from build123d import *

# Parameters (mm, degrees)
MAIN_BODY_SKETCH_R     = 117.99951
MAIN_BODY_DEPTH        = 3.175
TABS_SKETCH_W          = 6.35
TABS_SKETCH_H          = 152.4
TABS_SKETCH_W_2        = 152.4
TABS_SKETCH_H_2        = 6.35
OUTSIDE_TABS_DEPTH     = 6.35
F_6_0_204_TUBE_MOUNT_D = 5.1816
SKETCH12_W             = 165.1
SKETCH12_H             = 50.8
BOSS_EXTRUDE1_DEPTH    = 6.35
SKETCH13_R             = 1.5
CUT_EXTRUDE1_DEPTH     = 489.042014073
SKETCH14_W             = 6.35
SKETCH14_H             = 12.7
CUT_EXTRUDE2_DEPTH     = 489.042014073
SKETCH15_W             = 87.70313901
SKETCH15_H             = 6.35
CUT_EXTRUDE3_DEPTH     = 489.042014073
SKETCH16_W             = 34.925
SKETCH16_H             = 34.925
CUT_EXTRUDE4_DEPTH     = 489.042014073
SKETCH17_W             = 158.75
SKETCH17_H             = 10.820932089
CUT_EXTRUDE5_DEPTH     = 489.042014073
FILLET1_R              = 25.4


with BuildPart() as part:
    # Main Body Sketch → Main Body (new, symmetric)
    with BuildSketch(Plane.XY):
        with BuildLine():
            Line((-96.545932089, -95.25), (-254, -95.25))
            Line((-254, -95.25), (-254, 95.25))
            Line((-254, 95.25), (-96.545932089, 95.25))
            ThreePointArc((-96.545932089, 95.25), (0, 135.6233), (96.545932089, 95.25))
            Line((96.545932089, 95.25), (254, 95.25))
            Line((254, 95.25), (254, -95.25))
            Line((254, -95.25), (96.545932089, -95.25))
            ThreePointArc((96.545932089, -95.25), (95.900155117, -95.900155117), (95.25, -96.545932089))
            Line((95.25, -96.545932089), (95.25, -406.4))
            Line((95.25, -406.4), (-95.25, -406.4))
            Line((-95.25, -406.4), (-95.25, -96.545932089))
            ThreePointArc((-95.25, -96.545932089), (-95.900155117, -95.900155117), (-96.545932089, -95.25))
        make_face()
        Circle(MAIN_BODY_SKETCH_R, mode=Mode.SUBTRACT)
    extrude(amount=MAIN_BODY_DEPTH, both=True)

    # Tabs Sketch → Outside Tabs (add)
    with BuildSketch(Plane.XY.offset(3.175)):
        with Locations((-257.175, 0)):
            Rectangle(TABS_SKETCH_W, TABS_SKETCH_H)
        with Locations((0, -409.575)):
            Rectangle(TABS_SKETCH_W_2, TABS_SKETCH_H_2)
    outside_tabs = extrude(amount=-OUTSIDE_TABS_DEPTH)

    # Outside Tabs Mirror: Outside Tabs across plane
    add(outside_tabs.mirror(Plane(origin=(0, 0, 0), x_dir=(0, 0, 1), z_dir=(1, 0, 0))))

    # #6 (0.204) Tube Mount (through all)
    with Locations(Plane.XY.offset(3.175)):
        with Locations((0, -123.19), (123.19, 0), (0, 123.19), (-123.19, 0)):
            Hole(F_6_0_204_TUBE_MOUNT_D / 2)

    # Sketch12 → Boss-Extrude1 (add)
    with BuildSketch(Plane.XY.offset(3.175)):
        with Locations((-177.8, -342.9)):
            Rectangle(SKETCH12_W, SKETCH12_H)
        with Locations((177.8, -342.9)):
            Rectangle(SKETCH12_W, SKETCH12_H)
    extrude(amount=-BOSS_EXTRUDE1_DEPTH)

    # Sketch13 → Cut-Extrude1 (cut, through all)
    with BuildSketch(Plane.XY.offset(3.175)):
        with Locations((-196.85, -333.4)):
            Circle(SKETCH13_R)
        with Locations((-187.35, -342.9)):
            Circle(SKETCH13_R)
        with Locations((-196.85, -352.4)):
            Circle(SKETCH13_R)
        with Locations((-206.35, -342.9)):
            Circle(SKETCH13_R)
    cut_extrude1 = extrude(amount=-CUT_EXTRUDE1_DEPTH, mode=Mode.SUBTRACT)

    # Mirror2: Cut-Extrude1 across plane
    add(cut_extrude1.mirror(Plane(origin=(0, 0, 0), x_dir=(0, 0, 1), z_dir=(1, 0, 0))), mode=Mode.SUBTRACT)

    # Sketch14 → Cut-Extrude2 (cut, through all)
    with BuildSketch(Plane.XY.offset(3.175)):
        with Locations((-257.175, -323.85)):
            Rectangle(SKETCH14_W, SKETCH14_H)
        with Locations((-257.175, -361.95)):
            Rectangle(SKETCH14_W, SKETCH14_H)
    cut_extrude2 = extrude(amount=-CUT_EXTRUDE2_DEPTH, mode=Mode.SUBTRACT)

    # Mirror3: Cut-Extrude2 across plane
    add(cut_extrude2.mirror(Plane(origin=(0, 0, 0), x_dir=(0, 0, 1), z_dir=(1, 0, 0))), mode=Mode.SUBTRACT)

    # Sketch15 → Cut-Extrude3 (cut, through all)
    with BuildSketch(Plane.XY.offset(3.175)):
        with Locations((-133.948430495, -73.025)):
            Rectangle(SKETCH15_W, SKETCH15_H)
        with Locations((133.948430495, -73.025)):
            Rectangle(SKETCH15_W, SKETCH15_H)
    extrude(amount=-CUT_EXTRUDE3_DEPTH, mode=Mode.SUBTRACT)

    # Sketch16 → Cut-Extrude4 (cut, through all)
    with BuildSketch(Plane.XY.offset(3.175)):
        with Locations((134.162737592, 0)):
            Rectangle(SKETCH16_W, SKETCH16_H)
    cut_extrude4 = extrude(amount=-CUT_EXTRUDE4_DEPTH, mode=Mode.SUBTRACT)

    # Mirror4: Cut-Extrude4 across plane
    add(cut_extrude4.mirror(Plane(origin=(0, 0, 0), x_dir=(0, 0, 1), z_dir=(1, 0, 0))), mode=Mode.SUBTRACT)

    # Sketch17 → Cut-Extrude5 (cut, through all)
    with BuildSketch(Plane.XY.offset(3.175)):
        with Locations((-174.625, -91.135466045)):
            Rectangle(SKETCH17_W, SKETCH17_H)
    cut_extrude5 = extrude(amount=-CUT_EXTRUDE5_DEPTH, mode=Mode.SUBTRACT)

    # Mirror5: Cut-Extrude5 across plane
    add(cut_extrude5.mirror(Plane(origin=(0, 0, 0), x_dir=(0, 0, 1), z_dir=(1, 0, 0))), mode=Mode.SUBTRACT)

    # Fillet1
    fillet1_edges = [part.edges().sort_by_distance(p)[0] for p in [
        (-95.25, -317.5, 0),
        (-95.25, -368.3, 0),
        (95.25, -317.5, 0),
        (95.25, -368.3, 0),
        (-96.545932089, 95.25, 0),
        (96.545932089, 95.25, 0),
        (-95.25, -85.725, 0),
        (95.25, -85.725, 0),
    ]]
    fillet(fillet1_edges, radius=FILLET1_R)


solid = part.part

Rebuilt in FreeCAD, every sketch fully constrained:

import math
import FreeCAD as App
import Part
import Sketcher
from FreeCAD import Vector
Q = App.Units.Quantity


def edges_at(feature, points):
    """Names of the edges that pass closest to the given points."""
    edges = feature.Shape.Edges
    near = lambda p: min(range(len(edges)), key=lambda i: edges[i].distToShape(Part.Vertex(*p))[0])
    return sorted({f"Edge{near(p) + 1}" for p in points})

doc = App.newDocument("Part")
params = doc.addObject("Spreadsheet::Sheet", "Params")
for row, (alias, value) in enumerate([
    ("sketch1_width", "7.5 in"),
    ("pad1_length", "0.25 in"),
    ("sketch2_width", "6 in"),
    ("sketch2_width2", "0.25 in"),
    ("pad2_length", "0.25 in"),
    ("sketch3_diameter", "0.204 in"),
    ("hole_diameter", "0.204 in"),
    ("sketch4_height", "2 in"),
    ("sketch4_width", "6.5 in"),
    ("pad3_length", "0.25 in"),
    ("sketch6_height", "0.5 in"),
    ("sketch6_width", "0.25 in"),
    ("sketch7_height", "0.25 in"),
    ("sketch8_width", "1.375 in"),
    ("sketch9_width", "6.25 in"),
    ("fillet_radius", "1 in"),
], start=1):
    params.set(f"A{row}", alias)
    params.set(f"B{row}", "=" + value)
    params.setAlias(f"B{row}", alias)

body = doc.addObject("PartDesign::Body", "Body")

# Sketch on XY plane
sketch1 = body.newObject("Sketcher::SketchObject", "Sketch")
sketch1.AttachmentSupport = (doc.getObject("XY_Plane"), [""])
sketch1.MapMode = "FlatFace"
sketch1.addGeometry([
    Part.LineSegment(Vector(-254, -95.25, 0), Vector(-96.545932, -95.25, 0)),  # 0
    Part.ArcOfCircle(Part.Circle(Vector(0.000001, 0.000001, 0), Vector(0, 0, 1), 135.623301), math.radians(-135.387132), math.radians(-134.612868)),  # 1
    Part.LineSegment(Vector(-95.25, -96.545932, 0), Vector(-95.25, -406.4, 0)),  # 2
    Part.LineSegment(Vector(-95.25, -406.4, 0), Vector(95.25, -406.4, 0)),  # 3
    Part.LineSegment(Vector(95.25, -406.4, 0), Vector(95.25, -96.545932, 0)),  # 4
    Part.ArcOfCircle(Part.Circle(Vector(-0.000001, 0.000001, 0), Vector(0, 0, 1), 135.623301), math.radians(-45.387132), math.radians(-44.612868)),  # 5
    Part.LineSegment(Vector(96.545932, -95.25, 0), Vector(254, -95.25, 0)),  # 6
    Part.LineSegment(Vector(254, -95.25, 0), Vector(254, 95.25, 0)),  # 7
    Part.LineSegment(Vector(254, 95.25, 0), Vector(96.545932, 95.25, 0)),  # 8
    Part.ArcOfCircle(Part.Circle(Vector(0, 0, 0), Vector(0, 0, 1), 135.6233), math.radians(44.612868), math.radians(135.387132)),  # 9
    Part.LineSegment(Vector(-96.545932, 95.25, 0), Vector(-254, 95.25, 0)),  # 10
    Part.LineSegment(Vector(-254, 95.25, 0), Vector(-254, -95.25, 0)),  # 11
    Part.Circle(Vector(0, 0, 0), Vector(0, 0, 1), 117.99951),  # 12
], False)
sketch1.addConstraint([
    Sketcher.Constraint("Coincident", 0, 2, 1, 1),
    Sketcher.Constraint("Coincident", 1, 2, 2, 1),
    Sketcher.Constraint("Coincident", 2, 2, 3, 1),
    Sketcher.Constraint("Coincident", 3, 2, 4, 1),
    Sketcher.Constraint("Coincident", 4, 2, 5, 1),
    Sketcher.Constraint("Coincident", 5, 2, 6, 1),
    Sketcher.Constraint("Coincident", 6, 2, 7, 1),
    Sketcher.Constraint("Coincident", 7, 2, 8, 1),
    Sketcher.Constraint("Coincident", 8, 2, 9, 1),
    Sketcher.Constraint("Coincident", 9, 2, 10, 1),
    Sketcher.Constraint("Coincident", 10, 2, 11, 1),
    Sketcher.Constraint("Coincident", 11, 2, 0, 1),
    Sketcher.Constraint("Horizontal", 0),
    Sketcher.Constraint("Vertical", 2),
    Sketcher.Constraint("Horizontal", 3),
    Sketcher.Constraint("Vertical", 4),
    Sketcher.Constraint("Horizontal", 6),
    Sketcher.Constraint("Vertical", 7),
    Sketcher.Constraint("Horizontal", 8),
    Sketcher.Constraint("Horizontal", 10),
    Sketcher.Constraint("Vertical", 11),
    Sketcher.Constraint("Coincident", 1, 3, -1, 1),
    Sketcher.Constraint("Coincident", 5, 3, -1, 1),
    Sketcher.Constraint("Coincident", 9, 3, -1, 1),
    Sketcher.Constraint("Coincident", 12, 3, -1, 1),
    Sketcher.Constraint("Equal", 1, 5),
    Sketcher.Constraint("Equal", 5, 9),
    Sketcher.Constraint("Symmetric", 6, 2, 10, 2, -1, 1),
    Sketcher.Constraint("Horizontal", 1, 2, 4, 2),
    Sketcher.Constraint("Horizontal", 0, 2, 5, 2),
    Sketcher.Constraint("Horizontal", 8, 2, 9, 2),
    Sketcher.Constraint("Equal", 3, 7),
    Sketcher.Constraint("DistanceX", 3, 1, 3, 2, Q("7.5 in")),
    Sketcher.Constraint("DistanceY", 2, 2, -1, 1, Q("16 in")),
    Sketcher.Constraint("DistanceX", -1, 1, 6, 2, Q("10 in")),
    Sketcher.Constraint("Diameter", 12, Q("9.2913 in")),
    Sketcher.Constraint("Radius", 1, Q("5.3395 in")),
])
sketch1.setExpression("Constraints[32]", "Params.sketch1_width")
pad1 = body.newObject("PartDesign::Pad", "Pad")
pad1.Profile = sketch1
pad1.setExpression("Length", "Params.pad1_length")
pad1.Midplane = True

# Sketch on XY plane
sketch2 = body.newObject("Sketcher::SketchObject", "Sketch001")
sketch2.AttachmentSupport = (doc.getObject("XY_Plane"), [""])
sketch2.MapMode = "FlatFace"
sketch2.AttachmentOffset = App.Placement(Vector(0, 0, 0.125 * 25.4), App.Rotation())
sketch2.addGeometry([
    Part.LineSegment(Vector(-260.35, 76.2, 0), Vector(-260.35, -76.2, 0)),  # 0
    Part.LineSegment(Vector(-260.35, -76.2, 0), Vector(-254, -76.2, 0)),  # 1
    Part.LineSegment(Vector(-254, -76.2, 0), Vector(-254, 76.2, 0)),  # 2
    Part.LineSegment(Vector(-254, 76.2, 0), Vector(-260.35, 76.2, 0)),  # 3
    Part.LineSegment(Vector(-76.2, -406.4, 0), Vector(-76.2, -412.75, 0)),  # 4
    Part.LineSegment(Vector(-76.2, -412.75, 0), Vector(76.2, -412.75, 0)),  # 5
    Part.LineSegment(Vector(76.2, -412.75, 0), Vector(76.2, -406.4, 0)),  # 6
    Part.LineSegment(Vector(76.2, -406.4, 0), Vector(-76.2, -406.4, 0)),  # 7
], False)
sketch2.addConstraint([
    Sketcher.Constraint("Coincident", 0, 2, 1, 1),
    Sketcher.Constraint("Coincident", 1, 2, 2, 1),
    Sketcher.Constraint("Coincident", 2, 2, 3, 1),
    Sketcher.Constraint("Coincident", 3, 2, 0, 1),
    Sketcher.Constraint("Coincident", 4, 2, 5, 1),
    Sketcher.Constraint("Coincident", 5, 2, 6, 1),
    Sketcher.Constraint("Coincident", 6, 2, 7, 1),
    Sketcher.Constraint("Coincident", 7, 2, 4, 1),
    Sketcher.Constraint("Vertical", 0),
    Sketcher.Constraint("Horizontal", 1),
    Sketcher.Constraint("Vertical", 2),
    Sketcher.Constraint("Horizontal", 3),
    Sketcher.Constraint("Vertical", 4),
    Sketcher.Constraint("Horizontal", 5),
    Sketcher.Constraint("Vertical", 6),
    Sketcher.Constraint("Horizontal", 7),
    Sketcher.Constraint("Equal", 7, 0),
    Sketcher.Constraint("Equal", 3, 4),
    Sketcher.Constraint("DistanceX", 5, 1, 5, 2, Q("6 in")),
    Sketcher.Constraint("DistanceY", 0, 2, -1, 1, Q("3 in")),
    Sketcher.Constraint("DistanceX", 1, 2, -1, 1, Q("10 in")),
    Sketcher.Constraint("DistanceX", 4, 2, -1, 1, Q("3 in")),
    Sketcher.Constraint("DistanceY", 6, 2, -1, 1, Q("16 in")),
    Sketcher.Constraint("DistanceX", 1, 1, 1, 2, Q("0.25 in")),
])
sketch2.setExpression("Constraints[18]", "Params.sketch2_width")
sketch2.setExpression("Constraints[23]", "Params.sketch2_width2")
pad2 = body.newObject("PartDesign::Pad", "Pad001")
pad2.Profile = sketch2
pad2.setExpression("Length", "Params.pad2_length")
pad2.Reversed = True
doc.recompute()

mirrored = body.newObject("PartDesign::Mirrored", "Mirrored")
mirrored.Originals = [pad2]
mirrored.MirrorPlane = (doc.getObject("YZ_Plane"), [""])
body.Tip = mirrored

# Sketch on XY plane
sketch3 = body.newObject("Sketcher::SketchObject", "Sketch002")
sketch3.AttachmentSupport = (doc.getObject("XY_Plane"), [""])
sketch3.MapMode = "FlatFace"
sketch3.AttachmentOffset = App.Placement(Vector(0, 0, 0.125 * 25.4), App.Rotation())
sketch3.addGeometry([
    Part.Circle(Vector(0, -123.19, 0), Vector(0, 0, 1), 2.5908),
    Part.Circle(Vector(123.19, 0, 0), Vector(0, 0, 1), 2.5908),
    Part.Circle(Vector(0, 123.19, 0), Vector(0, 0, 1), 2.5908),
    Part.Circle(Vector(-123.19, 0, 0), Vector(0, 0, 1), 2.5908),
], False)
sketch3.addConstraint([
    Sketcher.Constraint("Equal", 0, 1),
    Sketcher.Constraint("Equal", 1, 2),
    Sketcher.Constraint("Equal", 2, 3),
    Sketcher.Constraint("Symmetric", 0, 3, 2, 3, -1, 1),
    Sketcher.Constraint("Symmetric", 1, 3, 3, 3, -1, 1),
    Sketcher.Constraint("PointOnObject", 0, 3, -2),
    Sketcher.Constraint("PointOnObject", 1, 3, -1),
    Sketcher.Constraint("Diameter", 0, Q("0.204 in")),
    Sketcher.Constraint("DistanceY", 0, 3, 2, 3, Q("9.7 in")),
    Sketcher.Constraint("DistanceX", 3, 3, 1, 3, Q("9.7 in")),
])
sketch3.setExpression("Constraints[7]", "Params.sketch3_diameter")
doc.recompute()
hole = body.newObject("PartDesign::Hole", "Hole")
hole.Profile = sketch3
hole.ThreadType = "None"
hole.setExpression("Diameter", "Params.hole_diameter")
hole.DepthType = "ThroughAll"

# Sketch on XY plane
sketch4 = body.newObject("Sketcher::SketchObject", "Sketch003")
sketch4.AttachmentSupport = (doc.getObject("XY_Plane"), [""])
sketch4.MapMode = "FlatFace"
sketch4.AttachmentOffset = App.Placement(Vector(0, 0, 0.125 * 25.4), App.Rotation())
sketch4.addGeometry([
    Part.LineSegment(Vector(-260.35, -317.5, 0), Vector(-260.35, -368.3, 0)),  # 0
    Part.LineSegment(Vector(-260.35, -368.3, 0), Vector(-95.25, -368.3, 0)),  # 1
    Part.LineSegment(Vector(-95.25, -368.3, 0), Vector(-95.25, -317.5, 0)),  # 2
    Part.LineSegment(Vector(-95.25, -317.5, 0), Vector(-260.35, -317.5, 0)),  # 3
    Part.LineSegment(Vector(95.25, -317.5, 0), Vector(95.25, -368.3, 0)),  # 4
    Part.LineSegment(Vector(95.25, -368.3, 0), Vector(260.35, -368.3, 0)),  # 5
    Part.LineSegment(Vector(260.35, -368.3, 0), Vector(260.35, -317.5, 0)),  # 6
    Part.LineSegment(Vector(260.35, -317.5, 0), Vector(95.25, -317.5, 0)),  # 7
], False)
sketch4.addConstraint([
    Sketcher.Constraint("Coincident", 0, 2, 1, 1),
    Sketcher.Constraint("Coincident", 1, 2, 2, 1),
    Sketcher.Constraint("Coincident", 2, 2, 3, 1),
    Sketcher.Constraint("Coincident", 3, 2, 0, 1),
    Sketcher.Constraint("Coincident", 4, 2, 5, 1),
    Sketcher.Constraint("Coincident", 5, 2, 6, 1),
    Sketcher.Constraint("Coincident", 6, 2, 7, 1),
    Sketcher.Constraint("Coincident", 7, 2, 4, 1),
    Sketcher.Constraint("Vertical", 0),
    Sketcher.Constraint("Horizontal", 1),
    Sketcher.Constraint("Vertical", 2),
    Sketcher.Constraint("Horizontal", 3),
    Sketcher.Constraint("Vertical", 4),
    Sketcher.Constraint("Horizontal", 5),
    Sketcher.Constraint("Vertical", 6),
    Sketcher.Constraint("Horizontal", 7),
    Sketcher.Constraint("Symmetric", 1, 2, 4, 2, -2),
    Sketcher.Constraint("Symmetric", 3, 2, 6, 2, -2),
    Sketcher.Constraint("DistanceY", 0, 2, 0, 1, Q("2 in")),
    Sketcher.Constraint("DistanceX", 1, 1, 1, 2, Q("6.5 in")),
    Sketcher.Constraint("DistanceX", 0, 2, 4, 2, Q("14 in")),
    Sketcher.Constraint("DistanceY", 0, 2, -1, 1, Q("14.5 in")),
])
sketch4.setExpression("Constraints[18]", "Params.sketch4_height")
sketch4.setExpression("Constraints[19]", "Params.sketch4_width")
pad3 = body.newObject("PartDesign::Pad", "Pad002")
pad3.Profile = sketch4
pad3.setExpression("Length", "Params.pad3_length")
pad3.Reversed = True

# Sketch on XY plane
sketch5 = body.newObject("Sketcher::SketchObject", "Sketch004")
sketch5.AttachmentSupport = (doc.getObject("XY_Plane"), [""])
sketch5.MapMode = "FlatFace"
sketch5.AttachmentOffset = App.Placement(Vector(0, 0, 0.125 * 25.4), App.Rotation())
sketch5.addGeometry([
    Part.Circle(Vector(-196.85, -333.4, 0), Vector(0, 0, 1), 1.5),
    Part.Circle(Vector(-187.35, -342.9, 0), Vector(0, 0, 1), 1.5),
    Part.Circle(Vector(-196.85, -352.4, 0), Vector(0, 0, 1), 1.5),
    Part.Circle(Vector(-206.35, -342.9, 0), Vector(0, 0, 1), 1.5),
], False)
sketch5.addConstraint([
    Sketcher.Constraint("Equal", 0, 1),
    Sketcher.Constraint("Equal", 1, 2),
    Sketcher.Constraint("Equal", 2, 3),
    Sketcher.Constraint("Horizontal", 1, 3, 3, 3),
    Sketcher.Constraint("Vertical", 0, 3, 2, 3),
    Sketcher.Constraint("DistanceY", 1, 3, -1, 1, Q("13.5 in")),
    Sketcher.Constraint("Diameter", 0, 3.0),
    Sketcher.Constraint("DistanceX", 0, 3, -1, 1, Q("7.75 in")),
    Sketcher.Constraint("DistanceY", 0, 3, -1, 1, 333.4),
    Sketcher.Constraint("DistanceX", 1, 3, -1, 1, 187.35),
    Sketcher.Constraint("DistanceY", 2, 3, -1, 1, 352.4),
    Sketcher.Constraint("DistanceX", 3, 3, -1, 1, 206.35),
])
pocket1 = body.newObject("PartDesign::Pocket", "Pocket")
pocket1.Profile = sketch5
pocket1.Type = "ThroughAll"
doc.recompute()

mirrored2 = body.newObject("PartDesign::Mirrored", "Mirrored001")
mirrored2.Originals = [pocket1]
mirrored2.MirrorPlane = (doc.getObject("YZ_Plane"), [""])
body.Tip = mirrored2

# Sketch on XY plane
sketch6 = body.newObject("Sketcher::SketchObject", "Sketch005")
sketch6.AttachmentSupport = (doc.getObject("XY_Plane"), [""])
sketch6.MapMode = "FlatFace"
sketch6.AttachmentOffset = App.Placement(Vector(0, 0, 0.125 * 25.4), App.Rotation())
sketch6.addGeometry([
    Part.LineSegment(Vector(-260.35, -317.5, 0), Vector(-260.35, -330.2, 0)),  # 0
    Part.LineSegment(Vector(-260.35, -330.2, 0), Vector(-254, -330.2, 0)),  # 1
    Part.LineSegment(Vector(-254, -330.2, 0), Vector(-254, -317.5, 0)),  # 2
    Part.LineSegment(Vector(-254, -317.5, 0), Vector(-260.35, -317.5, 0)),  # 3
    Part.LineSegment(Vector(-260.35, -355.6, 0), Vector(-260.35, -368.3, 0)),  # 4
    Part.LineSegment(Vector(-260.35, -368.3, 0), Vector(-254, -368.3, 0)),  # 5
    Part.LineSegment(Vector(-254, -368.3, 0), Vector(-254, -355.6, 0)),  # 6
    Part.LineSegment(Vector(-254, -355.6, 0), Vector(-260.35, -355.6, 0)),  # 7
], False)
sketch6.addConstraint([
    Sketcher.Constraint("Coincident", 0, 2, 1, 1),
    Sketcher.Constraint("Coincident", 1, 2, 2, 1),
    Sketcher.Constraint("Coincident", 2, 2, 3, 1),
    Sketcher.Constraint("Coincident", 3, 2, 0, 1),
    Sketcher.Constraint("Coincident", 4, 2, 5, 1),
    Sketcher.Constraint("Coincident", 5, 2, 6, 1),
    Sketcher.Constraint("Coincident", 6, 2, 7, 1),
    Sketcher.Constraint("Coincident", 7, 2, 4, 1),
    Sketcher.Constraint("Vertical", 0),
    Sketcher.Constraint("Horizontal", 1),
    Sketcher.Constraint("Vertical", 2),
    Sketcher.Constraint("Horizontal", 3),
    Sketcher.Constraint("Vertical", 4),
    Sketcher.Constraint("Horizontal", 5),
    Sketcher.Constraint("Vertical", 6),
    Sketcher.Constraint("Horizontal", 7),
    Sketcher.Constraint("Vertical", 3, 2, 4, 2),
    Sketcher.Constraint("Vertical", 2, 2, 5, 2),
    Sketcher.Constraint("Equal", 2, 4),
    Sketcher.Constraint("DistanceY", 0, 2, 0, 1, Q("0.5 in")),
    Sketcher.Constraint("DistanceY", 0, 2, -1, 1, Q("13 in")),
    Sketcher.Constraint("DistanceX", 1, 2, -1, 1, Q("10 in")),
    Sketcher.Constraint("DistanceY", 6, 2, -1, 1, Q("14 in")),
    Sketcher.Constraint("DistanceX", 1, 1, 1, 2, Q("0.25 in")),
])
sketch6.setExpression("Constraints[19]", "Params.sketch6_height")
sketch6.setExpression("Constraints[23]", "Params.sketch6_width")
pocket2 = body.newObject("PartDesign::Pocket", "Pocket001")
pocket2.Profile = sketch6
pocket2.Type = "ThroughAll"
doc.recompute()

mirrored3 = body.newObject("PartDesign::Mirrored", "Mirrored002")
mirrored3.Originals = [pocket2]
mirrored3.MirrorPlane = (doc.getObject("YZ_Plane"), [""])
body.Tip = mirrored3

# Sketch on XY plane
sketch7 = body.newObject("Sketcher::SketchObject", "Sketch006")
sketch7.AttachmentSupport = (doc.getObject("XY_Plane"), [""])
sketch7.MapMode = "FlatFace"
sketch7.AttachmentOffset = App.Placement(Vector(0, 0, 0.125 * 25.4), App.Rotation())
sketch7.addGeometry([
    Part.LineSegment(Vector(-177.8, -69.85, 0), Vector(-177.8, -76.2, 0)),  # 0
    Part.LineSegment(Vector(-177.8, -76.2, 0), Vector(-90.096861, -76.2, 0)),  # 1
    Part.LineSegment(Vector(-90.096861, -76.2, 0), Vector(-90.096861, -69.85, 0)),  # 2
    Part.LineSegment(Vector(-90.096861, -69.85, 0), Vector(-177.8, -69.85, 0)),  # 3
    Part.LineSegment(Vector(90.096861, -69.85, 0), Vector(90.096861, -76.2, 0)),  # 4
    Part.LineSegment(Vector(90.096861, -76.2, 0), Vector(177.8, -76.2, 0)),  # 5
    Part.LineSegment(Vector(177.8, -76.2, 0), Vector(177.8, -69.85, 0)),  # 6
    Part.LineSegment(Vector(177.8, -69.85, 0), Vector(90.096861, -69.85, 0)),  # 7
], False)
sketch7.addConstraint([
    Sketcher.Constraint("Coincident", 0, 2, 1, 1),
    Sketcher.Constraint("Coincident", 1, 2, 2, 1),
    Sketcher.Constraint("Coincident", 2, 2, 3, 1),
    Sketcher.Constraint("Coincident", 3, 2, 0, 1),
    Sketcher.Constraint("Coincident", 4, 2, 5, 1),
    Sketcher.Constraint("Coincident", 5, 2, 6, 1),
    Sketcher.Constraint("Coincident", 6, 2, 7, 1),
    Sketcher.Constraint("Coincident", 7, 2, 4, 1),
    Sketcher.Constraint("Vertical", 0),
    Sketcher.Constraint("Horizontal", 1),
    Sketcher.Constraint("Vertical", 2),
    Sketcher.Constraint("Horizontal", 3),
    Sketcher.Constraint("Vertical", 4),
    Sketcher.Constraint("Horizontal", 5),
    Sketcher.Constraint("Vertical", 6),
    Sketcher.Constraint("Horizontal", 7),
    Sketcher.Constraint("Symmetric", 1, 2, 4, 2, -2),
    Sketcher.Constraint("Symmetric", 3, 2, 6, 2, -2),
    Sketcher.Constraint("DistanceX", 0, 2, -1, 1, Q("7 in")),
    Sketcher.Constraint("DistanceY", 0, 2, -1, 1, Q("3 in")),
    Sketcher.Constraint("DistanceY", 0, 2, 0, 1, Q("0.25 in")),
    Sketcher.Constraint("DistanceX", 1, 1, 1, 2, 87.703139),
])
sketch7.setExpression("Constraints[20]", "Params.sketch7_height")
pocket3 = body.newObject("PartDesign::Pocket", "Pocket002")
pocket3.Profile = sketch7
pocket3.Type = "ThroughAll"

# Sketch on XY plane
sketch8 = body.newObject("Sketcher::SketchObject", "Sketch007")
sketch8.AttachmentSupport = (doc.getObject("XY_Plane"), [""])
sketch8.MapMode = "FlatFace"
sketch8.AttachmentOffset = App.Placement(Vector(0, 0, 0.125 * 25.4), App.Rotation())
sketch8.addGeometry([
    Part.LineSegment(Vector(116.700238, 17.4625, 0), Vector(116.700238, -17.4625, 0)),
    Part.LineSegment(Vector(116.700238, -17.4625, 0), Vector(151.625238, -17.4625, 0)),
    Part.LineSegment(Vector(151.625238, -17.4625, 0), Vector(151.625238, 17.4625, 0)),
    Part.LineSegment(Vector(151.625238, 17.4625, 0), Vector(116.700238, 17.4625, 0)),
], False)
sketch8.addConstraint([
    Sketcher.Constraint("Coincident", 0, 2, 1, 1),
    Sketcher.Constraint("Coincident", 1, 2, 2, 1),
    Sketcher.Constraint("Coincident", 2, 2, 3, 1),
    Sketcher.Constraint("Coincident", 3, 2, 0, 1),
    Sketcher.Constraint("Vertical", 0),
    Sketcher.Constraint("Horizontal", 1),
    Sketcher.Constraint("Vertical", 2),
    Sketcher.Constraint("Horizontal", 3),
    Sketcher.Constraint("Equal", 3, 0),
    Sketcher.Constraint("DistanceX", 1, 1, 1, 2, Q("1.375 in")),
    Sketcher.Constraint("DistanceY", 0, 2, -1, 1, Q("0.6875 in")),
    Sketcher.Constraint("DistanceX", -1, 1, 0, 2, 116.700238),
])
sketch8.setExpression("Constraints[9]", "Params.sketch8_width")
pocket4 = body.newObject("PartDesign::Pocket", "Pocket003")
pocket4.Profile = sketch8
pocket4.Type = "ThroughAll"
doc.recompute()

mirrored4 = body.newObject("PartDesign::Mirrored", "Mirrored003")
mirrored4.Originals = [pocket4]
mirrored4.MirrorPlane = (doc.getObject("YZ_Plane"), [""])
body.Tip = mirrored4

# Sketch on XY plane
sketch9 = body.newObject("Sketcher::SketchObject", "Sketch008")
sketch9.AttachmentSupport = (doc.getObject("XY_Plane"), [""])
sketch9.MapMode = "FlatFace"
sketch9.AttachmentOffset = App.Placement(Vector(0, 0, 0.125 * 25.4), App.Rotation())
sketch9.addGeometry([
    Part.LineSegment(Vector(-254, -85.725, 0), Vector(-254, -96.545932, 0)),
    Part.LineSegment(Vector(-254, -96.545932, 0), Vector(-95.25, -96.545932, 0)),
    Part.LineSegment(Vector(-95.25, -96.545932, 0), Vector(-95.25, -85.725, 0)),
    Part.LineSegment(Vector(-95.25, -85.725, 0), Vector(-254, -85.725, 0)),
], False)
sketch9.addConstraint([
    Sketcher.Constraint("Coincident", 0, 2, 1, 1),
    Sketcher.Constraint("Coincident", 1, 2, 2, 1),
    Sketcher.Constraint("Coincident", 2, 2, 3, 1),
    Sketcher.Constraint("Coincident", 3, 2, 0, 1),
    Sketcher.Constraint("Vertical", 0),
    Sketcher.Constraint("Horizontal", 1),
    Sketcher.Constraint("Vertical", 2),
    Sketcher.Constraint("Horizontal", 3),
    Sketcher.Constraint("DistanceX", 0, 2, -1, 1, Q("10 in")),
    Sketcher.Constraint("DistanceX", 1, 1, 1, 2, Q("6.25 in")),
    Sketcher.Constraint("DistanceY", 2, 2, -1, 1, Q("3.375 in")),
    Sketcher.Constraint("DistanceY", 0, 2, 0, 1, 10.820932),
])
sketch9.setExpression("Constraints[9]", "Params.sketch9_width")
pocket5 = body.newObject("PartDesign::Pocket", "Pocket004")
pocket5.Profile = sketch9
pocket5.Type = "ThroughAll"
doc.recompute()

mirrored5 = body.newObject("PartDesign::Mirrored", "Mirrored004")
mirrored5.Originals = [pocket5]
mirrored5.MirrorPlane = (doc.getObject("YZ_Plane"), [""])
body.Tip = mirrored5
doc.recompute()

fillet = body.newObject("PartDesign::Fillet", "Fillet")
fillet.Base = (mirrored5, edges_at(mirrored5, [
    (-95.25, -317.5, 0),
    (-95.25, -368.3, 0),
    (95.25, -317.5, 0),
    (95.25, -368.3, 0),
    (-96.546, 95.25, 0),
    (96.546, 95.25, 0),
    (-95.25, -85.725, 0),
    (95.25, -85.725, 0),
]))
fillet.setExpression("Radius", "Params.fillet_radius")

doc.recompute()
